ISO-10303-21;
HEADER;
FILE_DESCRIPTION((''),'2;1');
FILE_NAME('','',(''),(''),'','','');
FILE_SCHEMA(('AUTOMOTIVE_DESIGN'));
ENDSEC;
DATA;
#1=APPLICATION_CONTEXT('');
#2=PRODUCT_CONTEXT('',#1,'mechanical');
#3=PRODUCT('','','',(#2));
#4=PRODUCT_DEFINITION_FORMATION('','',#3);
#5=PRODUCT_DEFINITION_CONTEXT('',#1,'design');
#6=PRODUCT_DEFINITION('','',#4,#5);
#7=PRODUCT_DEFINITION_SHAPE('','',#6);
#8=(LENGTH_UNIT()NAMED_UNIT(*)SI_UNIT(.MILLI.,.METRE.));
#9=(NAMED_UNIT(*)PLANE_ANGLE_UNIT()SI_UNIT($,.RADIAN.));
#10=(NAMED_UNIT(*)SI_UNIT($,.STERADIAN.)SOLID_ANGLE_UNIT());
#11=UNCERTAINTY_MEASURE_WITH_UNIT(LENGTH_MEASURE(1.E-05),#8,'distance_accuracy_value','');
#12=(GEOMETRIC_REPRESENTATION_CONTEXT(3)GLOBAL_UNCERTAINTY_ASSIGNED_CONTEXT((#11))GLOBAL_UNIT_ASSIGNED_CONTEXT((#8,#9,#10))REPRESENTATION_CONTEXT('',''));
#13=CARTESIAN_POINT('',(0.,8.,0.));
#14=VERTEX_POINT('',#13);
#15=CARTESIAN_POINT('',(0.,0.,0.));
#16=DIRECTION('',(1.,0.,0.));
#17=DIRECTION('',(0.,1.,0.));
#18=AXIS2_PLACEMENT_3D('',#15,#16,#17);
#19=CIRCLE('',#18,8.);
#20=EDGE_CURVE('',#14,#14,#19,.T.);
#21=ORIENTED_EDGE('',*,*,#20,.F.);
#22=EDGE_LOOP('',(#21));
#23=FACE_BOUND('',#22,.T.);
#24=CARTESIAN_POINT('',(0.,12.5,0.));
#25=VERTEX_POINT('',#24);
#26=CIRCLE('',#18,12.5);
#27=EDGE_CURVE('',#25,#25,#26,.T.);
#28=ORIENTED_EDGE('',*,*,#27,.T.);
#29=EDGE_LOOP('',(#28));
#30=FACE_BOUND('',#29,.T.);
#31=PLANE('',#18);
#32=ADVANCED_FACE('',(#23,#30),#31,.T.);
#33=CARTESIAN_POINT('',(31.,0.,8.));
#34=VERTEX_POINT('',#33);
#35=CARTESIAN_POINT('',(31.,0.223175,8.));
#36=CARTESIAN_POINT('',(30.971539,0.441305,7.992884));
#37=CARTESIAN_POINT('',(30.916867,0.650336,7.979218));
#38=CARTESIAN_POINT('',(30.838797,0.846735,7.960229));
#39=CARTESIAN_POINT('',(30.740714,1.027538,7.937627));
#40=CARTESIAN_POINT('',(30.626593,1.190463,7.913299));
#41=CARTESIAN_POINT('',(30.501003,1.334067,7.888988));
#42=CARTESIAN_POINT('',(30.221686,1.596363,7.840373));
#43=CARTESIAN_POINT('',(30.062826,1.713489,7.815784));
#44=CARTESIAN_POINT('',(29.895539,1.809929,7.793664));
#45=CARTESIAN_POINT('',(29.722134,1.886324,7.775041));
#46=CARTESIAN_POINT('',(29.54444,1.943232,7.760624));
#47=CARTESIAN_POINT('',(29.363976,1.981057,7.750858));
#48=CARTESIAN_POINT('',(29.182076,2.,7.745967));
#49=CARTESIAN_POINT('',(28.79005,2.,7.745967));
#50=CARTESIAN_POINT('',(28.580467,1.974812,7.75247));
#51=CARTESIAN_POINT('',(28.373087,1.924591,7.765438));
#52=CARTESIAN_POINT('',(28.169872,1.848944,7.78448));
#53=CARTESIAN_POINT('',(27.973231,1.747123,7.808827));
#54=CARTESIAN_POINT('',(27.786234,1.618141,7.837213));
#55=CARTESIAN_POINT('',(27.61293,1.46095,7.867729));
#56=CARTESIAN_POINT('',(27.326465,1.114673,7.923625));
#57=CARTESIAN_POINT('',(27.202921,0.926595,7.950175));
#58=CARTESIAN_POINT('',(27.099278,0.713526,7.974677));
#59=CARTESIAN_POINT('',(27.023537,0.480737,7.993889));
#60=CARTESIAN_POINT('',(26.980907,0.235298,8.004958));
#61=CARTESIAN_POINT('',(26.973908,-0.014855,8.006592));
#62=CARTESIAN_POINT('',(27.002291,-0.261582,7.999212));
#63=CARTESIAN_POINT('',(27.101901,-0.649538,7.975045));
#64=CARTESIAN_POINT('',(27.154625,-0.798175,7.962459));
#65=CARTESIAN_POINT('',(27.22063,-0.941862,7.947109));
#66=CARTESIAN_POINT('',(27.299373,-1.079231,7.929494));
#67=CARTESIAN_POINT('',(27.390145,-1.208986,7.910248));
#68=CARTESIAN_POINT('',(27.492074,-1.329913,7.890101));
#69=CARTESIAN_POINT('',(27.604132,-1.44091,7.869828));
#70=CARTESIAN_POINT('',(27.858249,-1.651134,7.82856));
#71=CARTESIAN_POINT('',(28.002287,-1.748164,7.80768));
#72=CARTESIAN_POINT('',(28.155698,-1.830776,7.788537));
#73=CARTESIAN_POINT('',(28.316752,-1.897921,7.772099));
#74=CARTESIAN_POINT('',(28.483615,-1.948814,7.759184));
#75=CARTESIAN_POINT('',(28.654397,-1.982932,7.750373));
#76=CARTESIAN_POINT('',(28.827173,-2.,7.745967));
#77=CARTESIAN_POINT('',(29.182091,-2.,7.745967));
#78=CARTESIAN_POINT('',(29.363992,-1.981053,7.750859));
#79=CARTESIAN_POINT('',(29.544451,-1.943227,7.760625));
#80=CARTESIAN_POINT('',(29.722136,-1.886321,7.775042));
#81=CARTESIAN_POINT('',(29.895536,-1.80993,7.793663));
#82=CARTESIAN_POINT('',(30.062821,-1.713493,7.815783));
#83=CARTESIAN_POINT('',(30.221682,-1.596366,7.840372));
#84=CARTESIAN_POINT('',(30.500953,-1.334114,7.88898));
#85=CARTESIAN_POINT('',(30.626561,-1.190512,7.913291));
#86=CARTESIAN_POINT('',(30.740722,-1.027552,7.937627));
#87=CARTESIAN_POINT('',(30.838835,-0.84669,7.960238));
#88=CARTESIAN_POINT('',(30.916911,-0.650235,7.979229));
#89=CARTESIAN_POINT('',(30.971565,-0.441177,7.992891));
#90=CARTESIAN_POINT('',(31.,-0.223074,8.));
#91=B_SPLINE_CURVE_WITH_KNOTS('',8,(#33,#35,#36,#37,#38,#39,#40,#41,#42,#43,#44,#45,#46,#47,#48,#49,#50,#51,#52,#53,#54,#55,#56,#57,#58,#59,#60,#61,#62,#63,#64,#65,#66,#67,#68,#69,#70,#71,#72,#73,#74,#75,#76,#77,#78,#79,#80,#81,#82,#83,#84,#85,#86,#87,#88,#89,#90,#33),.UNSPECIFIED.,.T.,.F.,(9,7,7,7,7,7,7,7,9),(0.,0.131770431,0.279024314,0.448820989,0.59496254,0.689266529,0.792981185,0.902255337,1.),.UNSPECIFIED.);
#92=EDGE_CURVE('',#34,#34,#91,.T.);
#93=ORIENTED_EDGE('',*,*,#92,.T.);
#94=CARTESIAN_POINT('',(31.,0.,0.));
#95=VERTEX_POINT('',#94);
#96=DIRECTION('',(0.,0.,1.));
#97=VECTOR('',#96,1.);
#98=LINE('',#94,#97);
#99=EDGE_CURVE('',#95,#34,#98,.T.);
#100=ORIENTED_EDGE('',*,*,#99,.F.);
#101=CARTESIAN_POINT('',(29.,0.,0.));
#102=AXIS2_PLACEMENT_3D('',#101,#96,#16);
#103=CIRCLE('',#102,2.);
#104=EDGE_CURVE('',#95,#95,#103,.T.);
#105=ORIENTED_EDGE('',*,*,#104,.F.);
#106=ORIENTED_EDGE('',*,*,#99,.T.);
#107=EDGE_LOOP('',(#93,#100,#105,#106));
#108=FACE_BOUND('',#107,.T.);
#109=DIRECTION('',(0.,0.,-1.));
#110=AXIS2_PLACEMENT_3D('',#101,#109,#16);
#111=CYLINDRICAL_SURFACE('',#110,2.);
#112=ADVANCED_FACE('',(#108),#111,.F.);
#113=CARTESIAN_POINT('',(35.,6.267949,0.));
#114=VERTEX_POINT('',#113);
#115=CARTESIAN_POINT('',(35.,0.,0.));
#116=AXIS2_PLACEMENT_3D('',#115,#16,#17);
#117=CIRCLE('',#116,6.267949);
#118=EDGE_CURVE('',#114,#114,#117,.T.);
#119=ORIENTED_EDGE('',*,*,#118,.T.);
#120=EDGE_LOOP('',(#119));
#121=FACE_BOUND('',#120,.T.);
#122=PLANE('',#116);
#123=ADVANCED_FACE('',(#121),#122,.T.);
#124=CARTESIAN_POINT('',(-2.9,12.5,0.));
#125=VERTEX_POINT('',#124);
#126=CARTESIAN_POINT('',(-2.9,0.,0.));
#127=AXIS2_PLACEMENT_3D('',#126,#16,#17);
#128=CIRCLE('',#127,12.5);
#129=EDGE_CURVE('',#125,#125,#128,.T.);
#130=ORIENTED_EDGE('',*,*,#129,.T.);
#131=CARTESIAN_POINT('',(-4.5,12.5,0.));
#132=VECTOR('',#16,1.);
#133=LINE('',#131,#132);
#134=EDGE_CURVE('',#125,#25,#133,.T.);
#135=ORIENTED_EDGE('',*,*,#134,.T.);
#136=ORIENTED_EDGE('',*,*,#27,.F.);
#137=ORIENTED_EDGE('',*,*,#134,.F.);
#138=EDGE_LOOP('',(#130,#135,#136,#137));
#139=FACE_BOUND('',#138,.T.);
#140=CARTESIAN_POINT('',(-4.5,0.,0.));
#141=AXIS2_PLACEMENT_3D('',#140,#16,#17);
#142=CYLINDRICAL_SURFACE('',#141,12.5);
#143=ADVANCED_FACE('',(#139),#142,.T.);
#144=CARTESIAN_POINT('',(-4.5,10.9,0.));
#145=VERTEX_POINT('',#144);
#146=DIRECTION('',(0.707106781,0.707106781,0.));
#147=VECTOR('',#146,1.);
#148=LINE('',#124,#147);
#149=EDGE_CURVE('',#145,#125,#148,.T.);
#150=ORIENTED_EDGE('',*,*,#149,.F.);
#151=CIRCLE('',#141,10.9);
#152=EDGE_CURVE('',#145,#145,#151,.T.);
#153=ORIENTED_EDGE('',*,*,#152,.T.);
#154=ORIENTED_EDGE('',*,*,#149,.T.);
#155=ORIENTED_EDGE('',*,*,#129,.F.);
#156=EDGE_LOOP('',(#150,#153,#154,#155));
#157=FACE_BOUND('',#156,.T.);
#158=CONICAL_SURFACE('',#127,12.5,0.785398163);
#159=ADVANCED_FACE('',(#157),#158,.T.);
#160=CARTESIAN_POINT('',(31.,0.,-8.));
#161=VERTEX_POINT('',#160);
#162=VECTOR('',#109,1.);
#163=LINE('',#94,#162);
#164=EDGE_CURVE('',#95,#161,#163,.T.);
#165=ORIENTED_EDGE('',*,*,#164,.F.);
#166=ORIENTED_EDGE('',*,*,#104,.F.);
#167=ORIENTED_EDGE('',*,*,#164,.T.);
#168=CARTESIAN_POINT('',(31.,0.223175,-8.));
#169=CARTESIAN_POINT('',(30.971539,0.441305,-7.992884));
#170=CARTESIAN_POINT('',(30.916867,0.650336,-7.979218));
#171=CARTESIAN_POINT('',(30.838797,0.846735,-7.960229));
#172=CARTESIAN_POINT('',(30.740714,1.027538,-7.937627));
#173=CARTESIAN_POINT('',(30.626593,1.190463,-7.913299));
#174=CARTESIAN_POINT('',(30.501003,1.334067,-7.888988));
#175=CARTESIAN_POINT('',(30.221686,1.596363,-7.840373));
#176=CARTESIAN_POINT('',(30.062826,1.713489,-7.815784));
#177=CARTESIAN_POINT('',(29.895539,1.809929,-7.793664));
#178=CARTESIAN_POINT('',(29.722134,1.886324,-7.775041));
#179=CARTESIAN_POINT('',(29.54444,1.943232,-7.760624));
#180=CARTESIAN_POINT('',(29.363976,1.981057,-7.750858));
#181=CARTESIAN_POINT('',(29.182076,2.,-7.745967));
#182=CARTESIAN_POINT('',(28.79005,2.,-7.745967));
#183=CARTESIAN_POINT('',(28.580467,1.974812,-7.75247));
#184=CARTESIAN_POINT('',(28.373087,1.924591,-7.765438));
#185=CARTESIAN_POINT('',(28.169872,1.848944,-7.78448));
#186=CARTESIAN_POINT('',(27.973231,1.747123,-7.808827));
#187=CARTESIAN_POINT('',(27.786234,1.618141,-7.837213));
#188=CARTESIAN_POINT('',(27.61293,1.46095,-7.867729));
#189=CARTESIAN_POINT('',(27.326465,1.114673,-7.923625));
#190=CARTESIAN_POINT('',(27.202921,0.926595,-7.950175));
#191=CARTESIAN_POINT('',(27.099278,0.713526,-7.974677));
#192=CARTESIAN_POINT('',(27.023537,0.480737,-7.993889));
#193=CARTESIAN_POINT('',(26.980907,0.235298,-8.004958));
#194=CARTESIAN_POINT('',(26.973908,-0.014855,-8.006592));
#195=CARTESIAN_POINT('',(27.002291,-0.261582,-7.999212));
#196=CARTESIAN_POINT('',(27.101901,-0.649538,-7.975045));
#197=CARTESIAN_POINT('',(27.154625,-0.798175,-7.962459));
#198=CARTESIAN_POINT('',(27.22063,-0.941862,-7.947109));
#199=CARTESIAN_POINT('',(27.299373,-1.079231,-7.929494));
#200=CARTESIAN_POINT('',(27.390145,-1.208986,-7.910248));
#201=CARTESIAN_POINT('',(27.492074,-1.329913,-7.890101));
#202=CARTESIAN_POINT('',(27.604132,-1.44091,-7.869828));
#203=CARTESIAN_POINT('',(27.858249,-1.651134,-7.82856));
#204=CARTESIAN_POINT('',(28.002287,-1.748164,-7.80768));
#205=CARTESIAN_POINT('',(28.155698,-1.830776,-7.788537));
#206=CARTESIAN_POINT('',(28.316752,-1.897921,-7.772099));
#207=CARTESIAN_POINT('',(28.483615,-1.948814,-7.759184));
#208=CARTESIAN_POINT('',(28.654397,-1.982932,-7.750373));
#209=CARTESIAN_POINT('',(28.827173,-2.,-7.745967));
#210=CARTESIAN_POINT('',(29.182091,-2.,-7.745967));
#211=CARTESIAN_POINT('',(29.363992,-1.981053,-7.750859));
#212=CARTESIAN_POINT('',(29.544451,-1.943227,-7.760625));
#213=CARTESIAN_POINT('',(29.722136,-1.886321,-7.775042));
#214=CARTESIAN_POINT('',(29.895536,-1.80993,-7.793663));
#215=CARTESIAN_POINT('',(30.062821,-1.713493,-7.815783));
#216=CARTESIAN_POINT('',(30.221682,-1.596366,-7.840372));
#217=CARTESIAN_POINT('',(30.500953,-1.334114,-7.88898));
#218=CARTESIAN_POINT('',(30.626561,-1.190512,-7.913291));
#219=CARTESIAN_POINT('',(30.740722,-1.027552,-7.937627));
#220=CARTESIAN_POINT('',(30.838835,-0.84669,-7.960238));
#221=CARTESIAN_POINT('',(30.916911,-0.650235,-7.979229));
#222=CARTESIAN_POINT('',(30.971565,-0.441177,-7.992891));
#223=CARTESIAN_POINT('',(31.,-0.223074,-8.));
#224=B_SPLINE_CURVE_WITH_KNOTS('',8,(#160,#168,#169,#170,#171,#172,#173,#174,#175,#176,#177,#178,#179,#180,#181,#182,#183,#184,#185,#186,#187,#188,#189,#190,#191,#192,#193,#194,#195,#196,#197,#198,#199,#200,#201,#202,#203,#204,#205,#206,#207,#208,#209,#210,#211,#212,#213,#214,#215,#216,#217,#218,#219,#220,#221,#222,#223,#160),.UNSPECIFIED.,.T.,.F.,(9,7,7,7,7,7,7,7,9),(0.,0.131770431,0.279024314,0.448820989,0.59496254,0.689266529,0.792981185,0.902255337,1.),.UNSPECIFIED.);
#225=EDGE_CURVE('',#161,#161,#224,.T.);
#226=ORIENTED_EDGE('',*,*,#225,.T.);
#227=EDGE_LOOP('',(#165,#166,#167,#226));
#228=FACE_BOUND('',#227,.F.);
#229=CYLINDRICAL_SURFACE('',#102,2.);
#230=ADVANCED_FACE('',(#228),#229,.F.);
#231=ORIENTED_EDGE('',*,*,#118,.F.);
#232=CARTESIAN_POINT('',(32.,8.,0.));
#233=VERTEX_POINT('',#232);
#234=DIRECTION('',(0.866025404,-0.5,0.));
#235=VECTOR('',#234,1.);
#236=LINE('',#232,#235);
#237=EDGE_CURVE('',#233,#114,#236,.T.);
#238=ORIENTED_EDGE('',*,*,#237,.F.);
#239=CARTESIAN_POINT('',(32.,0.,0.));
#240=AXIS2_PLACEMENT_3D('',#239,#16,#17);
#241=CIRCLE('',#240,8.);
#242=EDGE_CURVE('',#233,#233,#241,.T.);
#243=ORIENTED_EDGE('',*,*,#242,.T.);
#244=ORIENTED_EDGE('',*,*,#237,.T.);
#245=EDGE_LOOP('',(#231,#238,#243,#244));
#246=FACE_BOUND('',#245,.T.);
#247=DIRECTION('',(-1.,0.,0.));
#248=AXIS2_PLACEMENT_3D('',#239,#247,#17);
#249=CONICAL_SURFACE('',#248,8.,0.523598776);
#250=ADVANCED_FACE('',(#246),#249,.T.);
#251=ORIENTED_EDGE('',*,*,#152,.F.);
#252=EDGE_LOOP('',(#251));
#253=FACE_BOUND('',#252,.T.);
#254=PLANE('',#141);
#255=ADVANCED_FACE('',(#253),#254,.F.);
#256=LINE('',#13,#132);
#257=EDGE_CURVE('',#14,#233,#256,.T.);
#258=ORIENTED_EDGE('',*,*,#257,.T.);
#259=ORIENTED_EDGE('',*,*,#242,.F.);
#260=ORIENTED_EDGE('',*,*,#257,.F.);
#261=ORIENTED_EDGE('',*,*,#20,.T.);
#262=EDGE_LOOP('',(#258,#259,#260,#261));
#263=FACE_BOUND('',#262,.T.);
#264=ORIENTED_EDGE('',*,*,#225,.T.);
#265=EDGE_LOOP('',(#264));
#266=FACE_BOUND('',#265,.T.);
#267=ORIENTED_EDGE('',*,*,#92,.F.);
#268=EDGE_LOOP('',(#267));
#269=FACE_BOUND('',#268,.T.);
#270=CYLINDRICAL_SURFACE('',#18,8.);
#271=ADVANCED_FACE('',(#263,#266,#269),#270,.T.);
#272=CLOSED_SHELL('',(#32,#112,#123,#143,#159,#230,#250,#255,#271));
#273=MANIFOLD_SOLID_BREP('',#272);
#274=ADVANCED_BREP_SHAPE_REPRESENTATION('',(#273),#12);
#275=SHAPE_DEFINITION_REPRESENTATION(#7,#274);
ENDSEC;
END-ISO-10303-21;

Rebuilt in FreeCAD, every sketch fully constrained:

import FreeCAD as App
import Part
import Sketcher
Q = App.Units.Quantity


def edges_at(feature, points):
    """Names of the edges that pass closest to the given points."""
    edges = feature.Shape.Edges
    near = lambda p: min(range(len(edges)), key=lambda i: edges[i].distToShape(Part.Vertex(*p))[0])
    return sorted({f"Edge{near(p) + 1}" for p in points})


def add_polygon(sketch, points):
    """Adds a closed chain of lines whose ends are joined by coincident constraints."""
    first, n = sketch.GeometryCount, len(points)
    for a, b in zip(points, points[1:] + points[:1]):
        sketch.addGeometry(Part.LineSegment(App.Vector(*a, 0), App.Vector(*b, 0)), False)
    for i in range(n):
        sketch.addConstraint(Sketcher.Constraint("Coincident", first + i, 2, first + (i + 1) % n, 1))

doc = App.newDocument("Part")
body = doc.addObject("PartDesign::Body", "Body")

# Sketch on XY plane
sketch1 = body.newObject("Sketcher::SketchObject", "Sketch")
sketch1.AttachmentSupport = (doc.getObject("XY_Plane"), [""])
sketch1.MapMode = "FlatFace"
add_polygon(sketch1, [(-4.5, 12.5), (-4.5, 0), (35, 0), (35, 8), (0, 8), (0, 12.5)])  # lines 0-5
sketch1.addConstraint([
    Sketcher.Constraint("Vertical", 0),
    Sketcher.Constraint("Horizontal", 1),
    Sketcher.Constraint("Vertical", 2),
    Sketcher.Constraint("Horizontal", 3),
    Sketcher.Constraint("Vertical", 4),
    Sketcher.Constraint("Horizontal", 5),
    Sketcher.Constraint("PointOnObject", 0, 2, -1),
    Sketcher.Constraint("PointOnObject", 3, 2, -2),
    Sketcher.Constraint("Equal", 5, 4),
    Sketcher.Constraint("DistanceX", 3, 2, 3, 1, Q("35 mm")),
    Sketcher.Constraint("DistanceX", 5, 2, 5, 1, Q("4.5 mm")),
    Sketcher.Constraint("DistanceY", 2, 1, 2, 2, Q("8 mm")),
])
revolution = body.newObject("PartDesign::Revolution", "Revolution")
revolution.Profile = sketch1
revolution.ReferenceAxis = (sketch1, ["H_Axis"])
revolution.Angle = 360

# Sketch on XY plane
sketch2 = body.newObject("Sketcher::SketchObject", "Sketch001")
sketch2.AttachmentSupport = (doc.getObject("XY_Plane"), [""])
sketch2.MapMode = "FlatFace"
sketch2.addGeometry(Part.Circle(App.Vector(29, 0, 0), App.Vector(0, 0, 1), 2), False)
sketch2.addConstraint([
    Sketcher.Constraint("PointOnObject", 0, 3, -1),
    Sketcher.Constraint("Diameter", 0, Q("4 mm")),
    Sketcher.Constraint("DistanceX", -1, 1, 0, 3, Q("29 mm")),
])
pocket1 = body.newObject("PartDesign::Pocket", "Pocket")
pocket1.Profile = sketch2
pocket1.Type = "ThroughAll"
pocket1.Midplane = True
doc.recompute()

chamfer = body.newObject("PartDesign::Chamfer", "Chamfer")
chamfer.Base = (pocket1, edges_at(pocket1, [(-4.5, -12.5, 0)]))
chamfer.Size = 1.6
doc.recompute()

chamfer2 = body.newObject("PartDesign::Chamfer", "Chamfer001")
chamfer2.Base = (chamfer, edges_at(chamfer, [(35, -8, 0)]))
chamfer2.ChamferType = "Distance and Angle"
chamfer2.Size = 3
chamfer2.Angle = 30

doc.recompute()
